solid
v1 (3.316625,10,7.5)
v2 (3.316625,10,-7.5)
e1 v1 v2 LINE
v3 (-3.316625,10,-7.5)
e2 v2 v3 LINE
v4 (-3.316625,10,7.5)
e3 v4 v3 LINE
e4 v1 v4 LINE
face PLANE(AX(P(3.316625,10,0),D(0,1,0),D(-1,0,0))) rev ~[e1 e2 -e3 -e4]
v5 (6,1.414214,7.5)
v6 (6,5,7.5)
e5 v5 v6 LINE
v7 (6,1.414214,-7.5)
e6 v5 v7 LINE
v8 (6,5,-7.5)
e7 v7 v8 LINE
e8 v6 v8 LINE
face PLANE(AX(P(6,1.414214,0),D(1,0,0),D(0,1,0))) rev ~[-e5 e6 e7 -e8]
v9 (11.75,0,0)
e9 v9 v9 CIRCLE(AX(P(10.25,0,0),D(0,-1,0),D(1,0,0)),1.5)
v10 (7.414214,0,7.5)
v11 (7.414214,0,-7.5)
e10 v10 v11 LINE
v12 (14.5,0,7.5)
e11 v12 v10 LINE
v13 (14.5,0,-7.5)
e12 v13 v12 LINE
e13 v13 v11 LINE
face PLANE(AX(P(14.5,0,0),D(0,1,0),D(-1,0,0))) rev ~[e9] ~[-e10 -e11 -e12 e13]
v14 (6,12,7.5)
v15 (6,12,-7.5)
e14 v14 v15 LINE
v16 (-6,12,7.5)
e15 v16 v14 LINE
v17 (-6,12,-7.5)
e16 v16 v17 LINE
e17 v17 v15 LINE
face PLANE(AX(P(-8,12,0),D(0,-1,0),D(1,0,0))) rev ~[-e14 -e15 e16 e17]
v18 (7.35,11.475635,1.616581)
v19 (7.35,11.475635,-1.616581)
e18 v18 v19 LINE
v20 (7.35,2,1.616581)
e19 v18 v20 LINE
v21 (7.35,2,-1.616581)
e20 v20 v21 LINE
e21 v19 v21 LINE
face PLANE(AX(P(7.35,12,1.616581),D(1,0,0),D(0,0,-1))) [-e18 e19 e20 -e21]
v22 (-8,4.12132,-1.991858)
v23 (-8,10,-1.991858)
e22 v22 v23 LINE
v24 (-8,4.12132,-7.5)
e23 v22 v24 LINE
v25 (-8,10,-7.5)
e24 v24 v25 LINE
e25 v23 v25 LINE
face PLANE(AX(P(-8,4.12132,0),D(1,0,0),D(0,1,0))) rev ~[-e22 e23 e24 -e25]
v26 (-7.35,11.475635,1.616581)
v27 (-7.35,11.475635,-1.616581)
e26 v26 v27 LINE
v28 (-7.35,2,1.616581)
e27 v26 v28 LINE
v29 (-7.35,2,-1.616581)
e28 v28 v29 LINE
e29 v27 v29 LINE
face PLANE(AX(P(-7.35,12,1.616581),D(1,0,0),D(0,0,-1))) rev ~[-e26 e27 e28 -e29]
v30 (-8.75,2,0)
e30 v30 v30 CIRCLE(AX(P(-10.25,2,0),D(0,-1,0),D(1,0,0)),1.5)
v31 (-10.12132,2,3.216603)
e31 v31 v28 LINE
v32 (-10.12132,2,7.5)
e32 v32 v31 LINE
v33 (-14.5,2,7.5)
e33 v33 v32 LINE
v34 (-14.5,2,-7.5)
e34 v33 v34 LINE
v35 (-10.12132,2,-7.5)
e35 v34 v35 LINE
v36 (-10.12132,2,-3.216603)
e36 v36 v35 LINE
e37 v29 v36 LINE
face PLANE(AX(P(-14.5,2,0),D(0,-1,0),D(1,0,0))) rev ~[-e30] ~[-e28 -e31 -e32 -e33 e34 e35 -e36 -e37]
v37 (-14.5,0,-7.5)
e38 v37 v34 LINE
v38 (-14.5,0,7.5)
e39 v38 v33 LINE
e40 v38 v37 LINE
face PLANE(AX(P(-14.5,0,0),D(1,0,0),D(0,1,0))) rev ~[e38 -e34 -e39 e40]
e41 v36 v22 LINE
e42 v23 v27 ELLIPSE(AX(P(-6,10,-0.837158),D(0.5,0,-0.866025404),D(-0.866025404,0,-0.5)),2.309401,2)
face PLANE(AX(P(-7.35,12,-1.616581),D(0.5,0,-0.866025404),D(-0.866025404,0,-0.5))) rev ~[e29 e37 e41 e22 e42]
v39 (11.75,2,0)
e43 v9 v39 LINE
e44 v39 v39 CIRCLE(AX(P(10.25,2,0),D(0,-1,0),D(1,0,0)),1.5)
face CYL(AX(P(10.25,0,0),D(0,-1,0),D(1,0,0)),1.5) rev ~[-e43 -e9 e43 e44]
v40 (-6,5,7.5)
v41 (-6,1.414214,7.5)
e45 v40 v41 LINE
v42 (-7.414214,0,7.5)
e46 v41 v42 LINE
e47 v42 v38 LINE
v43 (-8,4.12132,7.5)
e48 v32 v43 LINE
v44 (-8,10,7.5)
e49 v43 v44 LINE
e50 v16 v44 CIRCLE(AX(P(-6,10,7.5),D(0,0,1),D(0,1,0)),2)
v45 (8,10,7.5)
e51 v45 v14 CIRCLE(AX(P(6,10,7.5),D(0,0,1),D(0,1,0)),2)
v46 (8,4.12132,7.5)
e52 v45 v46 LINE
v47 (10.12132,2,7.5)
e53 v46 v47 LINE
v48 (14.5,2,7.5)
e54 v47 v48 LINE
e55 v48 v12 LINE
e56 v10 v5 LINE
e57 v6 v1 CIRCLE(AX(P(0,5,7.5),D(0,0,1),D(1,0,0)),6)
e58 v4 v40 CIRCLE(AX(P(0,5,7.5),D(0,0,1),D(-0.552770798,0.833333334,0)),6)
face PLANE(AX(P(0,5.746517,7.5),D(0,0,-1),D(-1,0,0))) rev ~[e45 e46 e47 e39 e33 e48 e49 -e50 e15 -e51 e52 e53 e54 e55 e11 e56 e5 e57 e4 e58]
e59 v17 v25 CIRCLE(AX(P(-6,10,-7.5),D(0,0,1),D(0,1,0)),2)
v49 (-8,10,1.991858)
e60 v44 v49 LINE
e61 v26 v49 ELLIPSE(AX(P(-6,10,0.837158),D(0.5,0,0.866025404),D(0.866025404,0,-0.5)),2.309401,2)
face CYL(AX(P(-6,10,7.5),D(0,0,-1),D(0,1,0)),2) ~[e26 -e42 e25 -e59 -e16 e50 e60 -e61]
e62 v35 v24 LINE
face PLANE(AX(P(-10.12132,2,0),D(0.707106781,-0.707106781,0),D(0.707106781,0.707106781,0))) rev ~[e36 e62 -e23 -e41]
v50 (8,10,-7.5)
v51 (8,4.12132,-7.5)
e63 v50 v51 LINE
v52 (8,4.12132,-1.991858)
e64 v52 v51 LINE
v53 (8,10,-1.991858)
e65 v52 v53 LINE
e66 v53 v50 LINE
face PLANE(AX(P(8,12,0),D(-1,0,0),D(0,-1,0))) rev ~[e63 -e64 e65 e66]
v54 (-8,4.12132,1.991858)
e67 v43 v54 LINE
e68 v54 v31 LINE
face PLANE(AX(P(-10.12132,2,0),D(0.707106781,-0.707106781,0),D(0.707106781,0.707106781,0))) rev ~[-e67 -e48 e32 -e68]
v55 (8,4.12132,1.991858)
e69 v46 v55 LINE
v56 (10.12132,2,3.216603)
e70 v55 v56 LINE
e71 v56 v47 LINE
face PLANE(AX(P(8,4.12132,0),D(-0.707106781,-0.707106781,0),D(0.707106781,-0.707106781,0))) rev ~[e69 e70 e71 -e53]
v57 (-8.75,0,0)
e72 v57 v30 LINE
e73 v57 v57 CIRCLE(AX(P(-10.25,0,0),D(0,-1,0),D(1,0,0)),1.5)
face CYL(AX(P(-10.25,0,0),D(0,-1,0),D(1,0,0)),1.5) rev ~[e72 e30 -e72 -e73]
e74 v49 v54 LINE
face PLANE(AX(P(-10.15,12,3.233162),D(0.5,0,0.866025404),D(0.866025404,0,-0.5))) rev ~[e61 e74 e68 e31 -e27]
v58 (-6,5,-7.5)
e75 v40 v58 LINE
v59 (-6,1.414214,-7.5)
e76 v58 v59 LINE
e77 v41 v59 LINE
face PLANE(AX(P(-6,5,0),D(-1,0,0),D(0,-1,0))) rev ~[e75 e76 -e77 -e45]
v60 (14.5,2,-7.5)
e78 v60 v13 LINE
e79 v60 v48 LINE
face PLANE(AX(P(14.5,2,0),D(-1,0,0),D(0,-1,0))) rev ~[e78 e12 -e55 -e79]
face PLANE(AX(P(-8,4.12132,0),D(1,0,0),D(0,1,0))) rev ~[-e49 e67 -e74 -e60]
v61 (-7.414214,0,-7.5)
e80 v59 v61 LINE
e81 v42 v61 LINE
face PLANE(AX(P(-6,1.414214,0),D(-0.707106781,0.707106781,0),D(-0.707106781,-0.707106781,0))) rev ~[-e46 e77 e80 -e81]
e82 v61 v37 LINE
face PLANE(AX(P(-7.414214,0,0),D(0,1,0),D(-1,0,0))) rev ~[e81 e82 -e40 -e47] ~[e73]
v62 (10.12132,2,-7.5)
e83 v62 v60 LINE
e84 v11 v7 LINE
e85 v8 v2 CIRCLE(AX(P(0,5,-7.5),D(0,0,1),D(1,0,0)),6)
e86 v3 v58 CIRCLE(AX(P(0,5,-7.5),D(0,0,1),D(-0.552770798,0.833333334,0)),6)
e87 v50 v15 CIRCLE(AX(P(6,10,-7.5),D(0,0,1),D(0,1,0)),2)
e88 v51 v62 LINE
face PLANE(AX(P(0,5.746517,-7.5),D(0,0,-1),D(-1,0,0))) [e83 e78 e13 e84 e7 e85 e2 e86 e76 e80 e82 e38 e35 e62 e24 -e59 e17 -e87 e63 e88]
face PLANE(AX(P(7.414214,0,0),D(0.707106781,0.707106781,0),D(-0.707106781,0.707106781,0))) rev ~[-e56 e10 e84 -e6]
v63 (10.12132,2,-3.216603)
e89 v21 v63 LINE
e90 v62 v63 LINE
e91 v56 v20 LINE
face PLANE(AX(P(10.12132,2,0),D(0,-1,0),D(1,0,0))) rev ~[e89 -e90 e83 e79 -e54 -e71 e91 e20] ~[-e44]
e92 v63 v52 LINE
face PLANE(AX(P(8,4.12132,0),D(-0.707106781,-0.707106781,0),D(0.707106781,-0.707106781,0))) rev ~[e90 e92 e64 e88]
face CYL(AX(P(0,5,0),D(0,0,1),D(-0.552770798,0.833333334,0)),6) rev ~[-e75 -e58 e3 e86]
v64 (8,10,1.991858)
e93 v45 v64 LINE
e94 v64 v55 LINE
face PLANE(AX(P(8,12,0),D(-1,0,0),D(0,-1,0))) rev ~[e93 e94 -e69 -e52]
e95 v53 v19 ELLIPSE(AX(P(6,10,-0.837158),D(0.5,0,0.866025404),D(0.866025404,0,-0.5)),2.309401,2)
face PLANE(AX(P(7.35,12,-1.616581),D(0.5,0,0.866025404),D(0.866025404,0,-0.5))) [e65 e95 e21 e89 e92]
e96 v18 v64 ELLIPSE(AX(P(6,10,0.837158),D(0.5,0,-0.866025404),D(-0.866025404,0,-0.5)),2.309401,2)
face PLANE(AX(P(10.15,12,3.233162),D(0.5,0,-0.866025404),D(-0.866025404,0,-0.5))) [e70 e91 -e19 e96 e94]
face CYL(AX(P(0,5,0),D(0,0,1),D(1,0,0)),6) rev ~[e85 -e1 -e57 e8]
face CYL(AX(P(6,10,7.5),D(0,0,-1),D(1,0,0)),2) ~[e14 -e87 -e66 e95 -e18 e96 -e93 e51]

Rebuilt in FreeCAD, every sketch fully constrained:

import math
import FreeCAD as App
import Part
import Sketcher

V = App.Vector
Q = App.Units.Quantity


def edges_at(feature, points):
    """Names of the edges that pass closest to the given points."""
    edges = feature.Shape.Edges
    near = lambda p: min(range(len(edges)), key=lambda i: edges[i].distToShape(Part.Vertex(*p))[0])
    return sorted({f"Edge{near(p) + 1}" for p in points})


def add_polygon(sketch, points):
    """Adds a closed chain of lines whose ends are joined by coincident constraints."""
    first, n = sketch.GeometryCount, len(points)
    for a, b in zip(points, points[1:] + points[:1]):
        sketch.addGeometry(Part.LineSegment(App.Vector(*a, 0), App.Vector(*b, 0)), False)
    for i in range(n):
        sketch.addConstraint(Sketcher.Constraint("Coincident", first + i, 2, first + (i + 1) % n, 1))

doc = App.newDocument("Part")
params = doc.addObject("Spreadsheet::Sheet", "Params")
for row, (alias, value) in enumerate([
    ("sketch1_radius", "6 mm"),
    ("sketch1_width", "16 mm"),
    ("sketch1_height", "2 mm"),
    ("sketch1_length", "3 mm"),
    ("sketch1_length2", "2 mm"),
    ("pad1_length", "15 mm"),
    ("fillet_radius", "2 mm"),
    ("pocket1_length", "10 mm"),
    ("sketch3_diameter", "3 mm"),
    ("pocket2_length", "11 mm"),
], start=1):
    params.set(f"A{row}", alias)
    params.set(f"B{row}", "=" + value)
    params.setAlias(f"B{row}", alias)

body = doc.addObject("PartDesign::Body", "Body")

# Sketch on XY plane
sketch1 = doc.addObject("Sketcher::SketchObject", "Sketch")
body.addObject(sketch1)
sketch1.AttachmentSupport = (doc.XY_Plane, [""])
sketch1.MapMode = "FlatFace"
sketch1.addGeometry(Part.LineSegment(V(7.414214, 0, 0), V(14.5, 0, 0)), False)
sketch1.addGeometry(Part.LineSegment(V(14.5, 0, 0), V(14.5, 2, 0)), False)
sketch1.addGeometry(Part.LineSegment(V(14.5, 2, 0), V(10.12132, 2, 0)), False)
sketch1.addGeometry(Part.LineSegment(V(10.12132, 2, 0), V(8, 4.12132, 0)), False)
sketch1.addGeometry(Part.LineSegment(V(8, 4.12132, 0), V(8, 12, 0)), False)
sketch1.addGeometry(Part.LineSegment(V(8, 12, 0), V(-8, 12, 0)), False)
sketch1.addGeometry(Part.LineSegment(V(-8, 12, 0), V(-8, 4.12132, 0)), False)
sketch1.addGeometry(Part.LineSegment(V(-8, 4.12132, 0), V(-10.12132, 2, 0)), False)
sketch1.addGeometry(Part.LineSegment(V(-10.12132, 2, 0), V(-14.5, 2, 0)), False)
sketch1.addGeometry(Part.LineSegment(V(-14.5, 2, 0), V(-14.5, 0, 0)), False)
sketch1.addGeometry(Part.LineSegment(V(-14.5, 0, 0), V(-7.414214, 0, 0)), False)
sketch1.addGeometry(Part.LineSegment(V(-7.414214, 0, 0), V(-6, 1.414214, 0)), False)
sketch1.addGeometry(Part.LineSegment(V(-6, 1.414214, 0), V(-6, 5, 0)), False)
sketch1.addGeometry(Part.ArcOfCircle(Part.Circle(V(0, 5, 0), V(0, 0, 1), 6), math.radians(123.55731), math.radians(180)), False)
sketch1.addGeometry(Part.LineSegment(V(-3.316625, 10, 0), V(3.316625, 10, 0)), False)
sketch1.addGeometry(Part.ArcOfCircle(Part.Circle(V(0, 5, 0), V(0, 0, 1), 6), math.radians(0), math.radians(56.44269)), False)
sketch1.addGeometry(Part.LineSegment(V(6, 5, 0), V(6, 1.414214, 0)), False)
sketch1.addGeometry(Part.LineSegment(V(6, 1.414214, 0), V(7.414214, 0, 0)), False)
sketch1.addConstraint(Sketcher.Constraint("Coincident", 0, 2, 1, 1))
sketch1.addConstraint(Sketcher.Constraint("Coincident", 1, 2, 2, 1))
sketch1.addConstraint(Sketcher.Constraint("Coincident", 2, 2, 3, 1))
sketch1.addConstraint(Sketcher.Constraint("Coincident", 3, 2, 4, 1))
sketch1.addConstraint(Sketcher.Constraint("Coincident", 4, 2, 5, 1))
sketch1.addConstraint(Sketcher.Constraint("Coincident", 5, 2, 6, 1))
sketch1.addConstraint(Sketcher.Constraint("Coincident", 6, 2, 7, 1))
sketch1.addConstraint(Sketcher.Constraint("Coincident", 7, 2, 8, 1))
sketch1.addConstraint(Sketcher.Constraint("Coincident", 8, 2, 9, 1))
sketch1.addConstraint(Sketcher.Constraint("Coincident", 9, 2, 10, 1))
sketch1.addConstraint(Sketcher.Constraint("Coincident", 10, 2, 11, 1))
sketch1.addConstraint(Sketcher.Constraint("Coincident", 11, 2, 12, 1))
sketch1.addConstraint(Sketcher.Constraint("Tangent", 12, 2, 13, 2))
sketch1.addConstraint(Sketcher.Constraint("Coincident", 13, 1, 14, 1))
sketch1.addConstraint(Sketcher.Constraint("Coincident", 14, 2, 15, 2))
sketch1.addConstraint(Sketcher.Constraint("Tangent", 15, 1, 16, 1))
sketch1.addConstraint(Sketcher.Constraint("Coincident", 16, 2, 17, 1))
sketch1.addConstraint(Sketcher.Constraint("Coincident", 17, 2, 0, 1))
sketch1.addConstraint(Sketcher.Constraint("Horizontal", 0))
sketch1.addConstraint(Sketcher.Constraint("Vertical", 1))
sketch1.addConstraint(Sketcher.Constraint("Horizontal", 2))
sketch1.addConstraint(Sketcher.Constraint("Vertical", 4))
sketch1.addConstraint(Sketcher.Constraint("Horizontal", 5))
sketch1.addConstraint(Sketcher.Constraint("Vertical", 6))
sketch1.addConstraint(Sketcher.Constraint("Horizontal", 8))
sketch1.addConstraint(Sketcher.Constraint("Vertical", 9))
sketch1.addConstraint(Sketcher.Constraint("Horizontal", 10))
sketch1.addConstraint(Sketcher.Constraint("Vertical", 12))
sketch1.addConstraint(Sketcher.Constraint("Horizontal", 14))
sketch1.addConstraint(Sketcher.Constraint("Vertical", 16))
sketch1.addConstraint(Sketcher.Constraint("Coincident", 15, 3, 13, 3))
sketch1.addConstraint(Sketcher.Constraint("Equal", 13, 15))
sketch1.addConstraint(Sketcher.Constraint("Symmetric", 0, 2, 9, 2, -1, 1))
sketch1.addConstraint(Sketcher.Constraint("Symmetric", 3, 2, 6, 2, -2))
sketch1.addConstraint(Sketcher.Constraint("Symmetric", 2, 2, 7, 2, -2))
sketch1.addConstraint(Sketcher.Constraint("Symmetric", 11, 2, 16, 2, -2))
sketch1.addConstraint(Sketcher.Constraint("Symmetric", 10, 2, 17, 2, -2))
sketch1.addConstraint(Sketcher.Constraint("Perpendicular", 3, 7))
sketch1.addConstraint(Sketcher.Constraint("Parallel", 7, 11))
sketch1.addConstraint(Sketcher.Constraint("Radius", 13, 6.0))
sketch1.addConstraint(Sketcher.Constraint("DistanceX", 5, 2, 5, 1, 16.0))
sketch1.addConstraint(Sketcher.Constraint("DistanceY", 1, 1, 1, 2, 2.0))
sketch1.addConstraint(Sketcher.Constraint("Distance", 3, 3.0))
sketch1.addConstraint(Sketcher.Constraint("Distance", 11, 2.0))
sketch1.addConstraint(Sketcher.Constraint("DistanceY", -1, 1, 13, 3, 5.0))
sketch1.addConstraint(Sketcher.Constraint("DistanceY", -1, 1, 4, 2, 12.0))
sketch1.addConstraint(Sketcher.Constraint("DistanceY", -1, 1, 13, 1, 10.0))
sketch1.addConstraint(Sketcher.Constraint("DistanceX", -1, 1, 0, 2, 14.5))
sketch1.setExpression("Constraints[39]", "Params.sketch1_radius")
sketch1.setExpression("Constraints[40]", "Params.sketch1_width")
sketch1.setExpression("Constraints[41]", "Params.sketch1_height")
sketch1.setExpression("Constraints[42]", "Params.sketch1_length")
sketch1.setExpression("Constraints[43]", "Params.sketch1_length2")
pad1 = doc.addObject("PartDesign::Pad", "Pad")
body.addObject(pad1)
pad1.Profile = sketch1
pad1.setExpression("Length", "Params.pad1_length")
pad1.Midplane = True
doc.recompute()

fillet = doc.addObject("PartDesign::Fillet", "Fillet")
body.addObject(fillet)
fillet.Base = (pad1, edges_at(pad1, [(-8, 12, 0), (8, 12, 0)]))
fillet.setExpression("Radius", "Params.fillet_radius")

# Sketch on XZ plane
sketch2 = doc.addObject("Sketcher::SketchObject", "Sketch001")
body.addObject(sketch2)
sketch2.AttachmentSupport = (doc.XZ_Plane, [""])
sketch2.MapMode = "FlatFace"
sketch2.AttachmentOffset = App.Placement(V(0, 0, -12), App.Rotation())
add_polygon(sketch2, [(-10.15, 3.233162), (-7.35, 1.616581), (-7.35, -1.616581), (-10.15, -3.233162), (-12.95, -1.616581), (-12.95, 1.616581)])  # lines 0-5
add_polygon(sketch2, [(10.15, 3.233162), (12.95, 1.616581), (12.95, -1.616581), (10.15, -3.233162), (7.35, -1.616581), (7.35, 1.616581)])  # lines 6-11
sketch2.addConstraint(Sketcher.Constraint("Vertical", 1))
sketch2.addConstraint(Sketcher.Constraint("Vertical", 4))
sketch2.addConstraint(Sketcher.Constraint("Vertical", 7))
sketch2.addConstraint(Sketcher.Constraint("Vertical", 10))
sketch2.addConstraint(Sketcher.Constraint("Symmetric", 3, 2, 6, 2, -1, 1))
sketch2.addConstraint(Sketcher.Constraint("Symmetric", 5, 2, 8, 2, -1, 1))
sketch2.addConstraint(Sketcher.Constraint("Symmetric", 0, 2, 9, 2, -1, 1))
sketch2.addConstraint(Sketcher.Constraint("Symmetric", 2, 2, 11, 2, -1, 1))
sketch2.addConstraint(Sketcher.Constraint("Symmetric", 2, 2, 8, 2, -2))
sketch2.addConstraint(Sketcher.Constraint("Parallel", 0, 3))
sketch2.addConstraint(Sketcher.Constraint("Parallel", 2, 5))
sketch2.addConstraint(Sketcher.Constraint("Parallel", 5, 8))
sketch2.addConstraint(Sketcher.Constraint("Parallel", 8, 11))
sketch2.addConstraint(Sketcher.Constraint("Horizontal", 1, 2, 3, 2))
sketch2.addConstraint(Sketcher.Constraint("Horizontal", 0, 2, 4, 2))
sketch2.addConstraint(Sketcher.Constraint("Angle", 0, Q("-30 deg")))
sketch2.addConstraint(Sketcher.Constraint("DistanceX", 2, 2, 1, 2, 2.8))
sketch2.addConstraint(Sketcher.Constraint("DistanceX", 0, 2, 6, 2, 20.3))
sketch2.addConstraint(Sketcher.Constraint("DistanceY", 1, 2, 1, 1, 3.233162))
pocket1 = doc.addObject("PartDesign::Pocket", "Pocket")
body.addObject(pocket1)
pocket1.Profile = sketch2
pocket1.setExpression("Length", "Params.pocket1_length")
pocket1.Reversed = True

# Sketch on XZ plane
sketch3 = doc.addObject("Sketcher::SketchObject", "Sketch002")
body.addObject(sketch3)
sketch3.AttachmentSupport = (doc.XZ_Plane, [""])
sketch3.MapMode = "FlatFace"
sketch3.addGeometry(Part.Circle(V(-10.25, 0, 0), V(0, 0, 1), 1.5), False)
sketch3.addGeometry(Part.Circle(V(10.25, 0, 0), V(0, 0, 1), 1.5), False)
sketch3.addConstraint(Sketcher.Constraint("Equal", 0, 1))
sketch3.addConstraint(Sketcher.Constraint("Symmetric", 0, 3, 1, 3, -1, 1))
sketch3.addConstraint(Sketcher.Constraint("PointOnObject", 0, 3, -1))
sketch3.addConstraint(Sketcher.Constraint("Diameter", 0, 3.0))
sketch3.addConstraint(Sketcher.Constraint("DistanceX", 0, 3, 1, 3, 20.5))
sketch3.setExpression("Constraints[3]", "Params.sketch3_diameter")
pocket2 = doc.addObject("PartDesign::Pocket", "Pocket001")
body.addObject(pocket2)
pocket2.Profile = sketch3
pocket2.setExpression("Length", "Params.pocket2_length")

doc.recompute()
